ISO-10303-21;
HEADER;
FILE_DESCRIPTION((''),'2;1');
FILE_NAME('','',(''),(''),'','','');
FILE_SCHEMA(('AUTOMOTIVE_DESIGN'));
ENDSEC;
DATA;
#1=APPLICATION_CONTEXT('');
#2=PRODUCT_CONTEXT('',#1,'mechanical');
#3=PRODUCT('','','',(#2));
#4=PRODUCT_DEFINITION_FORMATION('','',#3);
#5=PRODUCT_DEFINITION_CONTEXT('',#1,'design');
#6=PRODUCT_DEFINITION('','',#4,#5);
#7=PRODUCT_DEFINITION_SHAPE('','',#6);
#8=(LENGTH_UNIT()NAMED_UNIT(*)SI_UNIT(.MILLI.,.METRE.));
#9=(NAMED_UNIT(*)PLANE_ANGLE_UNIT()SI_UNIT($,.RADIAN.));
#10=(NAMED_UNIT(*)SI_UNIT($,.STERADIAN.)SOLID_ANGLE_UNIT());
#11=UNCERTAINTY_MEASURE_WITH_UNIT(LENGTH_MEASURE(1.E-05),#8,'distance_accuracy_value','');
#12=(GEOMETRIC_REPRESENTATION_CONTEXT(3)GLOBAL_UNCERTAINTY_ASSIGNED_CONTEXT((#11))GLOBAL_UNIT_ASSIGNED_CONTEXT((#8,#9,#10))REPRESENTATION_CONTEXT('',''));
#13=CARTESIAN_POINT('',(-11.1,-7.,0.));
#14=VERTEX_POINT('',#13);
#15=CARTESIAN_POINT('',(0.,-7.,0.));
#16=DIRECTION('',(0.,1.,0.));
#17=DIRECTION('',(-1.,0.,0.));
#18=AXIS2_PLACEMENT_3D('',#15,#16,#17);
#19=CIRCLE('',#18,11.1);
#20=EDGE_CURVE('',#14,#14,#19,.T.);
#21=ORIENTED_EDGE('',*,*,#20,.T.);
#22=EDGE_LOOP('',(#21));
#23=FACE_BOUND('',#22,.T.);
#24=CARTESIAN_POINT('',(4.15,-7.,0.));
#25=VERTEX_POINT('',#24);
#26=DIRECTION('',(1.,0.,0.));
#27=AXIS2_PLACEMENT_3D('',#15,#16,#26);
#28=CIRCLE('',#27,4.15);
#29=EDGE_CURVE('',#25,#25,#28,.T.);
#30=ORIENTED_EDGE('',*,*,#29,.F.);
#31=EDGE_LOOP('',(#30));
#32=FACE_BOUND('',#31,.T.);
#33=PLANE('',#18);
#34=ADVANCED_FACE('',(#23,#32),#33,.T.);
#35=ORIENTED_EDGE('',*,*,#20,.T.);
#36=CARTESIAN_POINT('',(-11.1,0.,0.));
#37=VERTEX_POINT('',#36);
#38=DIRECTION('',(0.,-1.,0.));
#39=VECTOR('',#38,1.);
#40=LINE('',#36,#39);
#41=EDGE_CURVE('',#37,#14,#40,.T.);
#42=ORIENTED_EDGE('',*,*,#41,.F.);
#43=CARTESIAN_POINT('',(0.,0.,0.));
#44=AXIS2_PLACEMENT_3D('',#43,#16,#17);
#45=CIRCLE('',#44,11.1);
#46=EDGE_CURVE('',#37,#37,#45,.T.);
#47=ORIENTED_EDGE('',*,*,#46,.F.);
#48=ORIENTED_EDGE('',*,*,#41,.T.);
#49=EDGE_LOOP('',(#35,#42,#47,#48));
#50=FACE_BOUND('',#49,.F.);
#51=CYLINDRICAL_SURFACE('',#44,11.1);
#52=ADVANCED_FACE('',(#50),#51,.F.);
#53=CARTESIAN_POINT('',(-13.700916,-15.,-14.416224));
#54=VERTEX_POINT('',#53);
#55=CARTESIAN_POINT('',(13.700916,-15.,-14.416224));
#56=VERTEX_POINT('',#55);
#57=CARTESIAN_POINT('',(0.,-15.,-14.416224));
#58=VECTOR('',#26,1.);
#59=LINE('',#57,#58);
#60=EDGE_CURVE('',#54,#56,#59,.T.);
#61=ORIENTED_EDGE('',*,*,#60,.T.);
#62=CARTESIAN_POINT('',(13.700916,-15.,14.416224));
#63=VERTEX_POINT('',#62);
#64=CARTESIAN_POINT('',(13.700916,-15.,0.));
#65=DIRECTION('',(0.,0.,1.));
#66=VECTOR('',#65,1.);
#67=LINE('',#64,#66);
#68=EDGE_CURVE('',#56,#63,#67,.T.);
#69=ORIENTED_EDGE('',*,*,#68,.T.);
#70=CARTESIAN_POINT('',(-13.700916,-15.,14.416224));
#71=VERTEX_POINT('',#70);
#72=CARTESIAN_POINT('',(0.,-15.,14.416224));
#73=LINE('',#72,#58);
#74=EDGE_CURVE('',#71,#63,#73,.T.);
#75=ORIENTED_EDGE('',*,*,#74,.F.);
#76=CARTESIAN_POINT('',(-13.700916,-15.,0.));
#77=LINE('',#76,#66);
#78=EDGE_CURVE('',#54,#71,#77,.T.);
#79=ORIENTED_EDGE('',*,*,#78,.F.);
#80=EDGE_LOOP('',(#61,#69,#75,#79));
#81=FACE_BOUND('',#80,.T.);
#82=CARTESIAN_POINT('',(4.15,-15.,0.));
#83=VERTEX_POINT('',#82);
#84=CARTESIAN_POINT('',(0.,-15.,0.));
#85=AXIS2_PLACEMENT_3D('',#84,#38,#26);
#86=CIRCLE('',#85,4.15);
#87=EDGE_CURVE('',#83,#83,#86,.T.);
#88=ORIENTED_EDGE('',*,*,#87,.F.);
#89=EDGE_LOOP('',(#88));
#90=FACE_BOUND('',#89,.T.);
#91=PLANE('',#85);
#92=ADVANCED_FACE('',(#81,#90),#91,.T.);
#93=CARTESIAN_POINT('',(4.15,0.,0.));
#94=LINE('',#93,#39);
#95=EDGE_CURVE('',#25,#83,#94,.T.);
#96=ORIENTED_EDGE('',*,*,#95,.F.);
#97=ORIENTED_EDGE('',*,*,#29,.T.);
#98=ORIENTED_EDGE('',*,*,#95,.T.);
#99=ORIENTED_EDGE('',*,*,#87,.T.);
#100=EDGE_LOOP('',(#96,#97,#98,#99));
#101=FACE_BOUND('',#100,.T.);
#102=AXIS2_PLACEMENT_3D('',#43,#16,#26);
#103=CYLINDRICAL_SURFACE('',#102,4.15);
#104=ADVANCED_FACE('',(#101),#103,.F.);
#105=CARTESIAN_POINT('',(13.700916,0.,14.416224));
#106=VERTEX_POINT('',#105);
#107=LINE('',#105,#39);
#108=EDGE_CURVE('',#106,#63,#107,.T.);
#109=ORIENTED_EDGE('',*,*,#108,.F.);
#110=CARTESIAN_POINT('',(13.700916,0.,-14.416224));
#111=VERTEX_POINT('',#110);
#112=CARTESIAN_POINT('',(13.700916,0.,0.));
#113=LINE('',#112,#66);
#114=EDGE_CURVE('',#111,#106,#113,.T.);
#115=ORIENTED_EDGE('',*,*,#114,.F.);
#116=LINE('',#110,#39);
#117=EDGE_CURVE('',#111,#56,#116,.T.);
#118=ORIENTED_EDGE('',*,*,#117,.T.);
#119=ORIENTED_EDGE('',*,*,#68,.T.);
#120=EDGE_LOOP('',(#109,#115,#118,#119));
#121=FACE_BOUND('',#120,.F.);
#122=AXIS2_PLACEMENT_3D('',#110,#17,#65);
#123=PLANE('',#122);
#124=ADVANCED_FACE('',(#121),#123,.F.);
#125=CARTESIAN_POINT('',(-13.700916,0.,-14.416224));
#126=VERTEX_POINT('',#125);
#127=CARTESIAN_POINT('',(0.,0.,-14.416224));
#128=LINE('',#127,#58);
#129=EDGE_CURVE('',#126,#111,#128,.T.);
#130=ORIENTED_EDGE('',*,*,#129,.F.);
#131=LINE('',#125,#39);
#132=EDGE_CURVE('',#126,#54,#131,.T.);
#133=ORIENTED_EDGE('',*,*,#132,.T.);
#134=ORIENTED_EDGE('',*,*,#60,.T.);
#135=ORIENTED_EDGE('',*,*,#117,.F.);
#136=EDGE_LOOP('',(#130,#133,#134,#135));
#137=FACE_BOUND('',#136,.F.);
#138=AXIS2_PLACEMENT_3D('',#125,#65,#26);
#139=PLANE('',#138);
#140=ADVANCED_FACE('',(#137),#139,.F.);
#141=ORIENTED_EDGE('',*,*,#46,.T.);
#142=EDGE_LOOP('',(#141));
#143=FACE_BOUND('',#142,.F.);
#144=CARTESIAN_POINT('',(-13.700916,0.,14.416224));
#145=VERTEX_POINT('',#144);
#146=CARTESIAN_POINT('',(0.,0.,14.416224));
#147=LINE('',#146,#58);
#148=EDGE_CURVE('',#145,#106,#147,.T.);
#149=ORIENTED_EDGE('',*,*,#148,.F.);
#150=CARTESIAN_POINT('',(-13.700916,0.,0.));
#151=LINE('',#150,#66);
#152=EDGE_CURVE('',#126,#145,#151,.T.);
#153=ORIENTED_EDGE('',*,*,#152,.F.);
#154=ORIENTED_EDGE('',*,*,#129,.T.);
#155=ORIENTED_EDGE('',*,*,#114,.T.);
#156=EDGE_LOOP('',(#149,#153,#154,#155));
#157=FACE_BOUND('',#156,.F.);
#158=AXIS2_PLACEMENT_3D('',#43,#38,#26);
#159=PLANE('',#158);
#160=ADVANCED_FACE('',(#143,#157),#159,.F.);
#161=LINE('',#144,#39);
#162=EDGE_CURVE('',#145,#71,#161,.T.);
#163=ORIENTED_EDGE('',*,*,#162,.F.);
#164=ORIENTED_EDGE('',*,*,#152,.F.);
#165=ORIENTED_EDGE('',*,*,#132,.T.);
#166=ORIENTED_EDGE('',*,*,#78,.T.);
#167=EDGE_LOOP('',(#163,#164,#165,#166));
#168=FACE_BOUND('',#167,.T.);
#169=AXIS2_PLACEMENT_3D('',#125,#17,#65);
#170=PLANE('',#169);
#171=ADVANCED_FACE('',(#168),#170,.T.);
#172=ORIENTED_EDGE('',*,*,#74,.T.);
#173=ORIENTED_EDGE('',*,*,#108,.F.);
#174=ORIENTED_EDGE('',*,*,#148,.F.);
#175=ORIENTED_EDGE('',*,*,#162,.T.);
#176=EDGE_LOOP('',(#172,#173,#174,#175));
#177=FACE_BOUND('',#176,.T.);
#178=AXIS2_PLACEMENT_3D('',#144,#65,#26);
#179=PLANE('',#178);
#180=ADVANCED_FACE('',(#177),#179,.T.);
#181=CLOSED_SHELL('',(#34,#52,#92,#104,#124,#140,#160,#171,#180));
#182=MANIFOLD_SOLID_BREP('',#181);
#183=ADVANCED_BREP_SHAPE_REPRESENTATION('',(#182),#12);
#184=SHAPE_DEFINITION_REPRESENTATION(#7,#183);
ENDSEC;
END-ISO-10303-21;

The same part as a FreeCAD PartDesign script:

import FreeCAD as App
import Part
import Sketcher
from FreeCAD import Vector
Q = App.Units.Quantity


def add_polygon(sketch, points):
    """Adds a closed chain of lines whose ends are joined by coincident constraints."""
    first, n = sketch.GeometryCount, len(points)
    for a, b in zip(points, points[1:] + points[:1]):
        sketch.addGeometry(Part.LineSegment(App.Vector(*a, 0), App.Vector(*b, 0)), False)
    for i in range(n):
        sketch.addConstraint(Sketcher.Constraint("Coincident", first + i, 2, first + (i + 1) % n, 1))

doc = App.newDocument("Part")
body = doc.addObject("PartDesign::Body", "Body")

sketch1 = body.newObject("Sketcher::SketchObject", "Sketch")
sketch1.AttachmentSupport = (doc.getObject("XZ_Plane"), [""])
sketch1.MapMode = "FlatFace"
add_polygon(sketch1, [(-13.7, 14.4), (-13.7, -14.4), (13.7, -14.4), (13.7, 14.4)])
sketch1.addGeometry(Part.Circle(Vector(0, 0, 0), Vector(0, 0, 1), 4.2), False)
sketch1.addConstraint([
    Sketcher.Constraint("Vertical", 0),
    Sketcher.Constraint("Horizontal", 1),
    Sketcher.Constraint("Vertical", 2),
    Sketcher.Constraint("Horizontal", 3),
    Sketcher.Constraint("Coincident", 4, 3, -1, 1),
    Sketcher.Constraint("Symmetric", 0, 2, 2, 2, -1, 1),
    Sketcher.Constraint("Diameter", 4, Q("8.3 mm")),
    Sketcher.Constraint("DistanceX", 1, 1, 1, 2, Q("27.401832 mm")),
    Sketcher.Constraint("DistanceY", 0, 2, 0, 1, Q("28.832448 mm")),
])
pad1 = body.newObject("PartDesign::Pad", "Pad")
pad1.Profile = sketch1
pad1.Length = 15

sketch2 = body.newObject("Sketcher::SketchObject", "Sketch001")
sketch2.AttachmentSupport = (doc.getObject("XZ_Plane"), [""])
sketch2.MapMode = "FlatFace"
sketch2.addGeometry([
    Part.Circle(Vector(0, 0, 0), Vector(0, 0, 1), 11.1),
    Part.Circle(Vector(0, 0, 0), Vector(0, 0, 1), 4.2),
], False)
sketch2.addConstraint([
    Sketcher.Constraint("Coincident", 0, 3, -1, 1),
    Sketcher.Constraint("Coincident", 1, 3, -1, 1),
    Sketcher.Constraint("Diameter", 0, Q("22.2 mm")),
    Sketcher.Constraint("Diameter", 1, Q("8.3 mm")),
])
pocket1 = body.newObject("PartDesign::Pocket", "Pocket")
pocket1.Profile = sketch2
pocket1.Length = 7
pocket1.Reversed = True

doc.recompute()
